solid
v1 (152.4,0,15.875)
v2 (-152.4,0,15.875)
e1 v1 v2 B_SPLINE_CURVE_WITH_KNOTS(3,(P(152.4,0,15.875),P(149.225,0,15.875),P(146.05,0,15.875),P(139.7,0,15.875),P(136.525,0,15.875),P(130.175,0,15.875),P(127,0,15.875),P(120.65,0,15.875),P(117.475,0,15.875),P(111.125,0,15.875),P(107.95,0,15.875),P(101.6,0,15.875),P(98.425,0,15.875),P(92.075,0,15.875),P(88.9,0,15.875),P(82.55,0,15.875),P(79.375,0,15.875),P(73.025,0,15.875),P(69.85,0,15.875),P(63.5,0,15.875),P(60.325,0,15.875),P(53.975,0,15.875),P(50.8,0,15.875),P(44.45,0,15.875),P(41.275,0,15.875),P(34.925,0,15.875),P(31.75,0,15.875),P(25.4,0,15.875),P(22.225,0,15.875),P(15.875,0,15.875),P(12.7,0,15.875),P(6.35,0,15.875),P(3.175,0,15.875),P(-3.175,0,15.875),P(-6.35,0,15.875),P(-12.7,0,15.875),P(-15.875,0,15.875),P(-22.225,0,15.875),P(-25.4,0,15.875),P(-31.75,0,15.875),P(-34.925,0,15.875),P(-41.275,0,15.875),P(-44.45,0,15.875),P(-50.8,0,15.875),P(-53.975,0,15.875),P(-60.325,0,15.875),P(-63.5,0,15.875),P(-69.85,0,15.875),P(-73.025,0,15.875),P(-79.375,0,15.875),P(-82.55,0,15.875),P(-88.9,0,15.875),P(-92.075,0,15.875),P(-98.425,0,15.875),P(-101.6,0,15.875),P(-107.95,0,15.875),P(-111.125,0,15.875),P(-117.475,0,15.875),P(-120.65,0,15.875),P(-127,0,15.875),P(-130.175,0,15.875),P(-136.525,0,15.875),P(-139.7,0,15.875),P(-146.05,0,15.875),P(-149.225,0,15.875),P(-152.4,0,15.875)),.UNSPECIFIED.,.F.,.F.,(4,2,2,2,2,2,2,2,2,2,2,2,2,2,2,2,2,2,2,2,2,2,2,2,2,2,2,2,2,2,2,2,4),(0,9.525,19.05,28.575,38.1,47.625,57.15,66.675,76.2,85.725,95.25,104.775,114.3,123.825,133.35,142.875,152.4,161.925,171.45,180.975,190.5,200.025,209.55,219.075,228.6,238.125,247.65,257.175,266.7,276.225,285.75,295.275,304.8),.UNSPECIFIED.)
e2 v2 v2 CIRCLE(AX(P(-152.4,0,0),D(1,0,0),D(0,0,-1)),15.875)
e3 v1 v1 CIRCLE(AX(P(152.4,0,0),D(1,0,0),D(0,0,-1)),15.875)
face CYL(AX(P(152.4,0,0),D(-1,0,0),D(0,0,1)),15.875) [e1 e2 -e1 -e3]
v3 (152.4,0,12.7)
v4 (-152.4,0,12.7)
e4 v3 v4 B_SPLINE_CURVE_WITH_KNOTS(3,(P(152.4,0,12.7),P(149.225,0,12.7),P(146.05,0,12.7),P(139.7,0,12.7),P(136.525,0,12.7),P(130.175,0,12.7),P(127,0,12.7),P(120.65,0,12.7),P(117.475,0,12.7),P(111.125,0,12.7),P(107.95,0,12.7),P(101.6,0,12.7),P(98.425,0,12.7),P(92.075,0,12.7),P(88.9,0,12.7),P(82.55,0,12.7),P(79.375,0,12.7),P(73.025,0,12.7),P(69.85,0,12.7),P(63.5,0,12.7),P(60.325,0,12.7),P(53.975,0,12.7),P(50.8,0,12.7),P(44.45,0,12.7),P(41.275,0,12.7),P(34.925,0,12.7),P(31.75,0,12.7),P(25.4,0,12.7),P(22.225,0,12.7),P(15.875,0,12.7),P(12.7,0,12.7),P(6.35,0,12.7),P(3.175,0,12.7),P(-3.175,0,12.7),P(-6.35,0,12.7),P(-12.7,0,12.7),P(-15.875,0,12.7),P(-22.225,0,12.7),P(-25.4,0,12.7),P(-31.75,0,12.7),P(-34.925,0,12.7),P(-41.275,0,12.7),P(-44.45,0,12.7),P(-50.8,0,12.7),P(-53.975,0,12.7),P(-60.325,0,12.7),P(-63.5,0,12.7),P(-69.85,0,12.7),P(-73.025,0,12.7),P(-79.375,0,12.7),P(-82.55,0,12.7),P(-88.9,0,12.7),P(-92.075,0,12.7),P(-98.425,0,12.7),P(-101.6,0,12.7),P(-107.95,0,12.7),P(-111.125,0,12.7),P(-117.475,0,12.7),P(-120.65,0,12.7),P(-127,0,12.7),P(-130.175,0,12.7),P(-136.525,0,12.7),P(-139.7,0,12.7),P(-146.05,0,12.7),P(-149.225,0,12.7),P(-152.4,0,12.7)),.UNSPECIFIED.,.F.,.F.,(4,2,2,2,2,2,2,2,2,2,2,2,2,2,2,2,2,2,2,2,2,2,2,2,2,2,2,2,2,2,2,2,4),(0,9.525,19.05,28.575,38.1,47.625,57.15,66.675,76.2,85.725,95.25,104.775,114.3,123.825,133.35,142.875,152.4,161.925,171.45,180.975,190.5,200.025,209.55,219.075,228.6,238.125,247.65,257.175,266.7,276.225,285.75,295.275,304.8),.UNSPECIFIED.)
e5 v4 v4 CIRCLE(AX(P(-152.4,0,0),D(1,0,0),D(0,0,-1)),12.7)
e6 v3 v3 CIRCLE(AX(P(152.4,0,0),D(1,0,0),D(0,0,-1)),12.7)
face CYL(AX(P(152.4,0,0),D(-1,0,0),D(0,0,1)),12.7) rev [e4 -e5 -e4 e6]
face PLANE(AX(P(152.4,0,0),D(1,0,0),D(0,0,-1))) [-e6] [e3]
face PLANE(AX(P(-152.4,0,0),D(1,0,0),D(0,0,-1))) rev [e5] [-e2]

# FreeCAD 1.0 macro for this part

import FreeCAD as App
import Part
import Sketcher
from FreeCAD import Vector
Q = App.Units.Quantity

doc = App.newDocument("Part")
body = doc.addObject("PartDesign::Body", "Body")

# Sketch on YZ plane
sketch1 = body.newObject("Sketcher::SketchObject", "Sketch")
sketch1.AttachmentSupport = (doc.getObject("YZ_Plane"), [""])
sketch1.MapMode = "FlatFace"
sketch1.addGeometry([
    Part.Circle(Vector(0, 0, 0), Vector(0, 0, 1), 16),
    Part.Circle(Vector(0, 0, 0), Vector(0, 0, 1), 13),
], False)
sketch1.addConstraint([
    Sketcher.Constraint("Coincident", 0, 3, -1, 1),
    Sketcher.Constraint("Coincident", 1, 3, -1, 1),
    Sketcher.Constraint("Diameter", 1, Q("1 in")),
    Sketcher.Constraint("Diameter", 0, Q("1.25 in")),
])
pad1 = body.newObject("PartDesign::Pad", "Pad")
pad1.Profile = sketch1
pad1.Length = Q("12 in")
pad1.Midplane = True

doc.recompute()
